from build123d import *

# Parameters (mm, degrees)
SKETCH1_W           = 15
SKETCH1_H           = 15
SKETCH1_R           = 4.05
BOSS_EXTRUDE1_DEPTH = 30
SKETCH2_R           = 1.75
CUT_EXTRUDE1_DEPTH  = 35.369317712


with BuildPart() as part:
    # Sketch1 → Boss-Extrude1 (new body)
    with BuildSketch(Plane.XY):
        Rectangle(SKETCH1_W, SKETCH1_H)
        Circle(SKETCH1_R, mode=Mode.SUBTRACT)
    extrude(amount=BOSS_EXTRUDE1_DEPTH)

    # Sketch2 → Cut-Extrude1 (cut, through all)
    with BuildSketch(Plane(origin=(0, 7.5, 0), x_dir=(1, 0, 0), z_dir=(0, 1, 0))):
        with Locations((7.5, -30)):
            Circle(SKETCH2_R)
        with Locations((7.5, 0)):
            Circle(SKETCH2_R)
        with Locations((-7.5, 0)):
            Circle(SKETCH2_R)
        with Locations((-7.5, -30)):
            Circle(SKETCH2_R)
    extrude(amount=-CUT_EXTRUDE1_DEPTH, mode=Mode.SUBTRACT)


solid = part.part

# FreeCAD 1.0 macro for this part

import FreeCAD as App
import Part
import Sketcher
from FreeCAD import Vector
Q = App.Units.Quantity

doc = App.newDocument("Part")
body = doc.addObject("PartDesign::Body", "Body")

# Sketch on XY plane
sketch1 = body.newObject("Sketcher::SketchObject", "Sketch")
sketch1.AttachmentSupport = (doc.getObject("XY_Plane"), [""])
sketch1.MapMode = "FlatFace"
sketch1.addGeometry([
    Part.LineSegment(Vector(-7.5, 7.5, 0), Vector(-7.5, -7.5, 0)),  # 0
    Part.LineSegment(Vector(-7.5, -7.5, 0), Vector(7.5, -7.5, 0)),  # 1
    Part.LineSegment(Vector(7.5, -7.5, 0), Vector(7.5, 7.5, 0)),  # 2
    Part.LineSegment(Vector(7.5, 7.5, 0), Vector(-7.5, 7.5, 0)),  # 3
    Part.Circle(Vector(0, 0, 0), Vector(0, 0, 1), 4.05),  # 4
], False)
sketch1.addConstraint([
    Sketcher.Constraint("Coincident", 0, 2, 1, 1),
    Sketcher.Constraint("Coincident", 1, 2, 2, 1),
    Sketcher.Constraint("Coincident", 2, 2, 3, 1),
    Sketcher.Constraint("Coincident", 3, 2, 0, 1),
    Sketcher.Constraint("Vertical", 0),
    Sketcher.Constraint("Horizontal", 1),
    Sketcher.Constraint("Vertical", 2),
    Sketcher.Constraint("Horizontal", 3),
    Sketcher.Constraint("Coincident", 4, 3, -1, 1),
    Sketcher.Constraint("Symmetric", 0, 2, 2, 2, -1, 1),
    Sketcher.Constraint("Equal", 3, 0),
    Sketcher.Constraint("Diameter", 4, Q("8.1 mm")),
    Sketcher.Constraint("DistanceX", 1, 1, 1, 2, Q("15 mm")),
])
pad1 = body.newObject("PartDesign::Pad", "Pad")
pad1.Profile = sketch1
pad1.Length = 30

# Sketch on XZ plane
sketch2 = body.newObject("Sketcher::SketchObject", "Sketch001")
sketch2.AttachmentSupport = (doc.getObject("XZ_Plane"), [""])
sketch2.MapMode = "FlatFace"
sketch2.AttachmentOffset = App.Placement(Vector(0, 0, -7.5), App.Rotation())
sketch2.addGeometry([
    Part.Circle(Vector(7.5, 30, 0), Vector(0, 0, 1), 1.75),
    Part.Circle(Vector(7.5, 0, 0), Vector(0, 0, 1), 1.75),
    Part.Circle(Vector(-7.5, 0, 0), Vector(0, 0, 1), 1.75),
    Part.Circle(Vector(-7.5, 30, 0), Vector(0, 0, 1), 1.75),
], False)
sketch2.addConstraint([
    Sketcher.Constraint("Equal", 0, 1),
    Sketcher.Constraint("Equal", 1, 2),
    Sketcher.Constraint("Equal", 2, 3),
    Sketcher.Constraint("Symmetric", 1, 3, 2, 3, -1, 1),
    Sketcher.Constraint("Symmetric", 0, 3, 3, 3, -2),
    Sketcher.Constraint("PointOnObject", 1, 3, -1),
    Sketcher.Constraint("Vertical", 0, 3, 1, 3),
    Sketcher.Constraint("Diameter", 0, Q("3.5 mm")),
    Sketcher.Constraint("DistanceY", -1, 1, 0, 3, Q("30 mm")),
    Sketcher.Constraint("DistanceX", 2, 3, 1, 3, Q("15 mm")),
])
pocket1 = body.newObject("PartDesign::Pocket", "Pocket")
pocket1.Profile = sketch2
pocket1.Type = "ThroughAll"
pocket1.Reversed = True

doc.recompute()
